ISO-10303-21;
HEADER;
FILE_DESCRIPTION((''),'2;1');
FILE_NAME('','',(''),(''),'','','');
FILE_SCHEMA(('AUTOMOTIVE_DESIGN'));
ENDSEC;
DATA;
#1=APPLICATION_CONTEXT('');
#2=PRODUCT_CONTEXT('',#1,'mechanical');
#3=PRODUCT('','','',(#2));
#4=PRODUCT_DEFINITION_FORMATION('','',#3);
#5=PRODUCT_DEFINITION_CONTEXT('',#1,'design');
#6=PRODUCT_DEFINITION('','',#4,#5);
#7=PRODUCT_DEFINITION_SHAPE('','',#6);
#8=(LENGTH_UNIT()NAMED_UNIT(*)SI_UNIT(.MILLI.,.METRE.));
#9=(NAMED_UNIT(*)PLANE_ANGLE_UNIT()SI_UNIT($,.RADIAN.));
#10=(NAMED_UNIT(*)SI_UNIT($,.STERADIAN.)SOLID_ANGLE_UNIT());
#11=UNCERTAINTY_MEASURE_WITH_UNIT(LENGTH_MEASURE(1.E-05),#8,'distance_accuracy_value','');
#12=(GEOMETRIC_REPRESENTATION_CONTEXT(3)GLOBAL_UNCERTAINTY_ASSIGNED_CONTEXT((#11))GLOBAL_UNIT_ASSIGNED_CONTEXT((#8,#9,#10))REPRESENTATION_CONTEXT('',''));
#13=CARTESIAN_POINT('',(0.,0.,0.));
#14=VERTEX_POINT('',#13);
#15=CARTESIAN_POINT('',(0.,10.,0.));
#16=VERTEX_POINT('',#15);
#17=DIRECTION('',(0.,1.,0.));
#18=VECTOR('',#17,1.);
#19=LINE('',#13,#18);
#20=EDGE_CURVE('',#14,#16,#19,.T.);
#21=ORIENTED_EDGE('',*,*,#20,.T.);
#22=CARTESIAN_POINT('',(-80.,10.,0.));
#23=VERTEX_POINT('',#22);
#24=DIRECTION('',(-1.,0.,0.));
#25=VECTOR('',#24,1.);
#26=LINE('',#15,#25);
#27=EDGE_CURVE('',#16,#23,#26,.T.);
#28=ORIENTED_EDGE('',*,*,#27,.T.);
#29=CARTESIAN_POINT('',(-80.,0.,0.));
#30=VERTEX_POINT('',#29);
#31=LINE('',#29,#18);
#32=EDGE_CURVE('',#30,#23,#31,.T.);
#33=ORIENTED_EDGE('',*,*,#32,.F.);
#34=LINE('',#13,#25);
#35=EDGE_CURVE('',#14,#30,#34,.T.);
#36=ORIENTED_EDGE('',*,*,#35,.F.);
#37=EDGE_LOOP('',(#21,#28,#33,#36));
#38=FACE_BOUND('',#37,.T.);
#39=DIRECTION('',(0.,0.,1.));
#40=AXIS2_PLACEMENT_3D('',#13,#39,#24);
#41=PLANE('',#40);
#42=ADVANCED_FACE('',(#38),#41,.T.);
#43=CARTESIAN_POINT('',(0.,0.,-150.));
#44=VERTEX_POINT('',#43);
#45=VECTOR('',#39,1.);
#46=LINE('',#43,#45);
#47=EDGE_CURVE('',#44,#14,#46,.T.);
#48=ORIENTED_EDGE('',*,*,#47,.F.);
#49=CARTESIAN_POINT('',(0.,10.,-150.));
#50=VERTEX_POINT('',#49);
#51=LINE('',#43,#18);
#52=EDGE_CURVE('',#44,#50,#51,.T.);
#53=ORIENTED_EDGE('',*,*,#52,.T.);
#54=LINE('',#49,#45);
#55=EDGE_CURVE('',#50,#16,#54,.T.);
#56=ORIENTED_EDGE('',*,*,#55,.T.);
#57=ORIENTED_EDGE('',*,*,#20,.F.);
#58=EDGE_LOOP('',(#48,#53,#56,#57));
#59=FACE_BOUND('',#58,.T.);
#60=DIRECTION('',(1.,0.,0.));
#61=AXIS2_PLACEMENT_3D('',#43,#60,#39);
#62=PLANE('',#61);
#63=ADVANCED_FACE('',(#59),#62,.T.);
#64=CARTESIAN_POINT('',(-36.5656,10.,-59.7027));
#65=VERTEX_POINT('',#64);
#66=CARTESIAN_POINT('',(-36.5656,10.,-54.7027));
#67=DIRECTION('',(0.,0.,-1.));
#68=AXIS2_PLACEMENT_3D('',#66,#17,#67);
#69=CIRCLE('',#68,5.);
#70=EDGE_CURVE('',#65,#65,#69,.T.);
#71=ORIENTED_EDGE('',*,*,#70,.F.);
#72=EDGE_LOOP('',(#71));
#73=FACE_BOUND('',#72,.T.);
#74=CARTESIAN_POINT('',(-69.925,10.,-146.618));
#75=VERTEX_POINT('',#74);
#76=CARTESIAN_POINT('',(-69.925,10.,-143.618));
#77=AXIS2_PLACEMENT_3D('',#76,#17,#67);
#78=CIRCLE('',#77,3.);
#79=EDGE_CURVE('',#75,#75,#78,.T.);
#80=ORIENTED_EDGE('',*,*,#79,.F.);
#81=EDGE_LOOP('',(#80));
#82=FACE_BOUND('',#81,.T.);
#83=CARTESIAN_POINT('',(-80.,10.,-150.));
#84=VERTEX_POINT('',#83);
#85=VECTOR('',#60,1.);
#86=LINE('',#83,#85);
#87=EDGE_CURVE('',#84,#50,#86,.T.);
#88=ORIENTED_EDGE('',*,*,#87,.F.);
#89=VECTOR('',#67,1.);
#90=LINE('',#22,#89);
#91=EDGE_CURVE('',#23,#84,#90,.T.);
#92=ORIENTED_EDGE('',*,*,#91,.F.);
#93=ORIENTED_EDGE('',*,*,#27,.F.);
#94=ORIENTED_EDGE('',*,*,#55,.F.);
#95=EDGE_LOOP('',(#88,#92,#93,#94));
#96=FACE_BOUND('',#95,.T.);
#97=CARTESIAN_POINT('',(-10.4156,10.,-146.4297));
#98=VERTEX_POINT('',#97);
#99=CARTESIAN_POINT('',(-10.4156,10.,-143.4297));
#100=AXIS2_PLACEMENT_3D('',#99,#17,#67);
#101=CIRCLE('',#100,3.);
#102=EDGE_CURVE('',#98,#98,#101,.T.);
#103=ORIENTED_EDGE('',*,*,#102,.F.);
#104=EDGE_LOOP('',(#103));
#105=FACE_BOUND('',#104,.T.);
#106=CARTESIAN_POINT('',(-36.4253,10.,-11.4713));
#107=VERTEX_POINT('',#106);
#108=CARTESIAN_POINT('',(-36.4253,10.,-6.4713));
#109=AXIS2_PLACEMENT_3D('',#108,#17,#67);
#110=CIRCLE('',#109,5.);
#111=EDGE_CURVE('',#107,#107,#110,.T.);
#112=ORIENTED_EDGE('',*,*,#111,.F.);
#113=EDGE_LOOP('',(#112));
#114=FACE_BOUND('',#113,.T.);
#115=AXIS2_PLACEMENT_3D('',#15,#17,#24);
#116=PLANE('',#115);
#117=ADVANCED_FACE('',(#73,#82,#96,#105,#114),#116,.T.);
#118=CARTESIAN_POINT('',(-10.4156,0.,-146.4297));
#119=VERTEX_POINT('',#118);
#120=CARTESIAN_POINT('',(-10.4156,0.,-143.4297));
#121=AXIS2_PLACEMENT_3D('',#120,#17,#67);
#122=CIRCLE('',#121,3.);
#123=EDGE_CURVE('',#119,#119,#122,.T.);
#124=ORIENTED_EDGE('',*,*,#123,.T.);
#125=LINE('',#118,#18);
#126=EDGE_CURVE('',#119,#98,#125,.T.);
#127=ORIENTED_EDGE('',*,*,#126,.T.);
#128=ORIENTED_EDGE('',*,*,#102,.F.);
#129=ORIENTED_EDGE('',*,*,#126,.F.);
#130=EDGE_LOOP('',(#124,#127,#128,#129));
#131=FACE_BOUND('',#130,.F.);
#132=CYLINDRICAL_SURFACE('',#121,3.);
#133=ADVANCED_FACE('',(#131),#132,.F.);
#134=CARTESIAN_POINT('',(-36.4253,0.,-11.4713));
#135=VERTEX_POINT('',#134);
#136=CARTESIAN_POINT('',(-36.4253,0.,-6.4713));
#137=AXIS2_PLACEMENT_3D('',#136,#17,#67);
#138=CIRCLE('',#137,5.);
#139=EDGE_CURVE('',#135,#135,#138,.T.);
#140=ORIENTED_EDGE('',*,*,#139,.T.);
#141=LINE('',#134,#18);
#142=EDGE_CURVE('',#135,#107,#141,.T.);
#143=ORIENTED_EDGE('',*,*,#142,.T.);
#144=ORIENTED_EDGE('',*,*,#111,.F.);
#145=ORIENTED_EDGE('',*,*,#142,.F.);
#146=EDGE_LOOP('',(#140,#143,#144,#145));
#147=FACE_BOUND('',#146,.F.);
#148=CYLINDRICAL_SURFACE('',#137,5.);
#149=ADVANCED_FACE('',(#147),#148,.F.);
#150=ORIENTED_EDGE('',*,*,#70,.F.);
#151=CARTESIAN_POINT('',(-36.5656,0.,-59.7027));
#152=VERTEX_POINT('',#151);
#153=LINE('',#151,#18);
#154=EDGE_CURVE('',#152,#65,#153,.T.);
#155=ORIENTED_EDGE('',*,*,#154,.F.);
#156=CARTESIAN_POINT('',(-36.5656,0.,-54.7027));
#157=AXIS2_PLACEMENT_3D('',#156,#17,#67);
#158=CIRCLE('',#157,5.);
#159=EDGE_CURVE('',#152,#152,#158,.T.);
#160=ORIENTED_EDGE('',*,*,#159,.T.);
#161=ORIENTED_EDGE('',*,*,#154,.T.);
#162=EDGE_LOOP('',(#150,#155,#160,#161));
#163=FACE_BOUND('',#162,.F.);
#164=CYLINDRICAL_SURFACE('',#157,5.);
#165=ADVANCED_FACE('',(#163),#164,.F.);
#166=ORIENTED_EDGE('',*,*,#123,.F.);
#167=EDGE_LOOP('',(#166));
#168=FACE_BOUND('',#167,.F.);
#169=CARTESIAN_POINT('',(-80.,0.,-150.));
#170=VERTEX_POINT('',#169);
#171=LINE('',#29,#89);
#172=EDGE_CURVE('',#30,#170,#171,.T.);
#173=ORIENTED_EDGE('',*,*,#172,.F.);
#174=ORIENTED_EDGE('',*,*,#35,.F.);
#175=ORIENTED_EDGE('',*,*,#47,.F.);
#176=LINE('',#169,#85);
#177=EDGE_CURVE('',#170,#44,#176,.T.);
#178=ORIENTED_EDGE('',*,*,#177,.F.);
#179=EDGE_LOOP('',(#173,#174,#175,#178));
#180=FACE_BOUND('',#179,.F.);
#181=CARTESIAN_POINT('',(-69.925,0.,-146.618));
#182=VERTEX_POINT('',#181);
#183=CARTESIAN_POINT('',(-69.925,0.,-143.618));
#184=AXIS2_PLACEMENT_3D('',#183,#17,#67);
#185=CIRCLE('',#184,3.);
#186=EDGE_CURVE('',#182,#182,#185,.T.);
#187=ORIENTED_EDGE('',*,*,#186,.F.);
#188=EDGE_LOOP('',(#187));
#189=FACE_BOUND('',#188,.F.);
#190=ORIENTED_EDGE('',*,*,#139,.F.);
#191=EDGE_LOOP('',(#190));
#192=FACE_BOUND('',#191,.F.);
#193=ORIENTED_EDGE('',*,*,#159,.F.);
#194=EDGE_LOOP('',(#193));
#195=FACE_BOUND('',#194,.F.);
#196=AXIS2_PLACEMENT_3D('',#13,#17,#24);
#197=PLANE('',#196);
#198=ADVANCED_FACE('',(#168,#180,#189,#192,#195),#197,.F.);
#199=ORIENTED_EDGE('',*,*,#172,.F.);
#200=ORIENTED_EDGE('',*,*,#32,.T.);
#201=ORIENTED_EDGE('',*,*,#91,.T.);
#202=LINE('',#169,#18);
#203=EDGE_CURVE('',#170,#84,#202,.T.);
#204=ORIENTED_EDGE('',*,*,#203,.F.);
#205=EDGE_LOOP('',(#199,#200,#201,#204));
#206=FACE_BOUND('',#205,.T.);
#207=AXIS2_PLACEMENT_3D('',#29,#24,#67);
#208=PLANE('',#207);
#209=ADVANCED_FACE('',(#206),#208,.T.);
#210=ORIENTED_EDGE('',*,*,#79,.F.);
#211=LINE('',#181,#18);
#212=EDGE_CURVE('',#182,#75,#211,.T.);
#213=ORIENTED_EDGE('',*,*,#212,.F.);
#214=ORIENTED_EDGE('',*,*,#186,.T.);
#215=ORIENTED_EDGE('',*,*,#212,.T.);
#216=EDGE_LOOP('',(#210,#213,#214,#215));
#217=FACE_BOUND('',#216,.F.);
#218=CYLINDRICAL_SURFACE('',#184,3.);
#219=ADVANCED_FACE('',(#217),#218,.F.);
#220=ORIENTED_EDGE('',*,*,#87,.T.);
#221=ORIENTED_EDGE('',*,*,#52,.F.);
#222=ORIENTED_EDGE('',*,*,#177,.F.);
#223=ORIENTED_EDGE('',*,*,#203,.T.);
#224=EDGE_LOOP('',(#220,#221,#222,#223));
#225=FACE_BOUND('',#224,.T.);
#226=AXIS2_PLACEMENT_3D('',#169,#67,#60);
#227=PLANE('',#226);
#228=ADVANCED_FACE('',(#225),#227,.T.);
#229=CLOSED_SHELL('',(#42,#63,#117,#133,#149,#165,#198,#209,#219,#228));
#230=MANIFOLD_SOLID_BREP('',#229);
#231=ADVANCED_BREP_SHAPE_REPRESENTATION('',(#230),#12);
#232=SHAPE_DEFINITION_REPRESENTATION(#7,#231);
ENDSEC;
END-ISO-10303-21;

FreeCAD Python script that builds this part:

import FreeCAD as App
import Part
import Sketcher

doc = App.newDocument("Part")
params = doc.addObject("Spreadsheet::Sheet", "Params")
for row, (alias, value) in enumerate([
    ("sketch1_width", "80 mm"),
    ("sketch1_height", "150 mm"),
    ("pad1_length", "10 mm"),
    ("sketch2_diameter", "6 mm"),
    ("hole_diameter", "6 mm"),
    ("sketch3_diameter", "10 mm"),
    ("hole2_diameter", "10 mm"),
], start=1):
    params.set(f"A{row}", alias)
    params.set(f"B{row}", "=" + value)
    params.setAlias(f"B{row}", alias)

body = doc.addObject("PartDesign::Body", "Body")

# Sketch on XZ plane
sketch1 = doc.addObject("Sketcher::SketchObject", "Sketch")
body.addObject(sketch1)
sketch1.AttachmentSupport = (doc.XZ_Plane, [""])
sketch1.MapMode = "FlatFace"
sketch1.addGeometry([
    Part.LineSegment(App.Vector(-80, 0, 0), App.Vector(0, 0, 0)),
    Part.LineSegment(App.Vector(0, 0, 0), App.Vector(0, -150, 0)),
    Part.LineSegment(App.Vector(0, -150, 0), App.Vector(-80, -150, 0)),
    Part.LineSegment(App.Vector(-80, -150, 0), App.Vector(-80, 0, 0)),
], False)
sketch1.addConstraint([
    Sketcher.Constraint("Coincident", 0, 2, 1, 1),
    Sketcher.Constraint("Coincident", 1, 2, 2, 1),
    Sketcher.Constraint("Coincident", 2, 2, 3, 1),
    Sketcher.Constraint("Coincident", 3, 2, 0, 1),
    Sketcher.Constraint("Horizontal", 0),
    Sketcher.Constraint("Vertical", 1),
    Sketcher.Constraint("Horizontal", 2),
    Sketcher.Constraint("Vertical", 3),
    Sketcher.Constraint("Coincident", 0, 2, -1, 1),
    Sketcher.Constraint("DistanceX", 0, 1, 0, 2, 80.0),
    Sketcher.Constraint("DistanceY", 1, 2, 1, 1, 150.0),
])
sketch1.setExpression("Constraints[9]", "Params.sketch1_width")
sketch1.setExpression("Constraints[10]", "Params.sketch1_height")
pad1 = doc.addObject("PartDesign::Pad", "Pad")
body.addObject(pad1)
pad1.Profile = sketch1
pad1.setExpression("Length", "Params.pad1_length")
pad1.Reversed = True

# Sketch on XZ plane
sketch2 = doc.addObject("Sketcher::SketchObject", "Sketch001")
body.addObject(sketch2)
sketch2.AttachmentSupport = (doc.XZ_Plane, [""])
sketch2.MapMode = "FlatFace"
sketch2.addGeometry([
    Part.Circle(App.Vector(-10.4, -143.4, 0), App.Vector(0, 0, 1), 3),
    Part.Circle(App.Vector(-69.9, -143.6, 0), App.Vector(0, 0, 1), 3),
], False)
sketch2.addConstraint([
    Sketcher.Constraint("Equal", 0, 1),
    Sketcher.Constraint("Diameter", 0, 6.0),
    Sketcher.Constraint("DistanceX", 1, 3, -1, 1, 69.925),
    Sketcher.Constraint("DistanceY", 1, 3, -1, 1, 143.618),
    Sketcher.Constraint("DistanceX", 0, 3, -1, 1, 10.4156),
    Sketcher.Constraint("DistanceY", 0, 3, -1, 1, 143.4297),
])
sketch2.setExpression("Constraints[1]", "Params.sketch2_diameter")
doc.recompute()
hole = doc.addObject("PartDesign::Hole", "Hole")
body.addObject(hole)
hole.Profile = sketch2
hole.ThreadType = "None"
hole.setExpression("Diameter", "Params.hole_diameter")
hole.DepthType = "ThroughAll"

# Sketch on XZ plane
sketch3 = doc.addObject("Sketcher::SketchObject", "Sketch002")
body.addObject(sketch3)
sketch3.AttachmentSupport = (doc.XZ_Plane, [""])
sketch3.MapMode = "FlatFace"
sketch3.addGeometry([
    Part.Circle(App.Vector(-37, -55, 0), App.Vector(0, 0, 1), 5),
    Part.Circle(App.Vector(-36, -6, 0), App.Vector(0, 0, 1), 5),
], False)
sketch3.addConstraint([
    Sketcher.Constraint("Equal", 0, 1),
    Sketcher.Constraint("Diameter", 0, 10.0),
    Sketcher.Constraint("DistanceX", 0, 3, -1, 1, 36.5656),
    Sketcher.Constraint("DistanceY", 0, 3, -1, 1, 54.7027),
    Sketcher.Constraint("DistanceX", 1, 3, -1, 1, 36.4253),
    Sketcher.Constraint("DistanceY", 1, 3, -1, 1, 6.4713),
])
sketch3.setExpression("Constraints[1]", "Params.sketch3_diameter")
doc.recompute()
hole2 = doc.addObject("PartDesign::Hole", "Hole001")
body.addObject(hole2)
hole2.Profile = sketch3
hole2.ThreadType = "None"
hole2.setExpression("Diameter", "Params.hole2_diameter")
hole2.DepthType = "ThroughAll"

doc.recompute()
